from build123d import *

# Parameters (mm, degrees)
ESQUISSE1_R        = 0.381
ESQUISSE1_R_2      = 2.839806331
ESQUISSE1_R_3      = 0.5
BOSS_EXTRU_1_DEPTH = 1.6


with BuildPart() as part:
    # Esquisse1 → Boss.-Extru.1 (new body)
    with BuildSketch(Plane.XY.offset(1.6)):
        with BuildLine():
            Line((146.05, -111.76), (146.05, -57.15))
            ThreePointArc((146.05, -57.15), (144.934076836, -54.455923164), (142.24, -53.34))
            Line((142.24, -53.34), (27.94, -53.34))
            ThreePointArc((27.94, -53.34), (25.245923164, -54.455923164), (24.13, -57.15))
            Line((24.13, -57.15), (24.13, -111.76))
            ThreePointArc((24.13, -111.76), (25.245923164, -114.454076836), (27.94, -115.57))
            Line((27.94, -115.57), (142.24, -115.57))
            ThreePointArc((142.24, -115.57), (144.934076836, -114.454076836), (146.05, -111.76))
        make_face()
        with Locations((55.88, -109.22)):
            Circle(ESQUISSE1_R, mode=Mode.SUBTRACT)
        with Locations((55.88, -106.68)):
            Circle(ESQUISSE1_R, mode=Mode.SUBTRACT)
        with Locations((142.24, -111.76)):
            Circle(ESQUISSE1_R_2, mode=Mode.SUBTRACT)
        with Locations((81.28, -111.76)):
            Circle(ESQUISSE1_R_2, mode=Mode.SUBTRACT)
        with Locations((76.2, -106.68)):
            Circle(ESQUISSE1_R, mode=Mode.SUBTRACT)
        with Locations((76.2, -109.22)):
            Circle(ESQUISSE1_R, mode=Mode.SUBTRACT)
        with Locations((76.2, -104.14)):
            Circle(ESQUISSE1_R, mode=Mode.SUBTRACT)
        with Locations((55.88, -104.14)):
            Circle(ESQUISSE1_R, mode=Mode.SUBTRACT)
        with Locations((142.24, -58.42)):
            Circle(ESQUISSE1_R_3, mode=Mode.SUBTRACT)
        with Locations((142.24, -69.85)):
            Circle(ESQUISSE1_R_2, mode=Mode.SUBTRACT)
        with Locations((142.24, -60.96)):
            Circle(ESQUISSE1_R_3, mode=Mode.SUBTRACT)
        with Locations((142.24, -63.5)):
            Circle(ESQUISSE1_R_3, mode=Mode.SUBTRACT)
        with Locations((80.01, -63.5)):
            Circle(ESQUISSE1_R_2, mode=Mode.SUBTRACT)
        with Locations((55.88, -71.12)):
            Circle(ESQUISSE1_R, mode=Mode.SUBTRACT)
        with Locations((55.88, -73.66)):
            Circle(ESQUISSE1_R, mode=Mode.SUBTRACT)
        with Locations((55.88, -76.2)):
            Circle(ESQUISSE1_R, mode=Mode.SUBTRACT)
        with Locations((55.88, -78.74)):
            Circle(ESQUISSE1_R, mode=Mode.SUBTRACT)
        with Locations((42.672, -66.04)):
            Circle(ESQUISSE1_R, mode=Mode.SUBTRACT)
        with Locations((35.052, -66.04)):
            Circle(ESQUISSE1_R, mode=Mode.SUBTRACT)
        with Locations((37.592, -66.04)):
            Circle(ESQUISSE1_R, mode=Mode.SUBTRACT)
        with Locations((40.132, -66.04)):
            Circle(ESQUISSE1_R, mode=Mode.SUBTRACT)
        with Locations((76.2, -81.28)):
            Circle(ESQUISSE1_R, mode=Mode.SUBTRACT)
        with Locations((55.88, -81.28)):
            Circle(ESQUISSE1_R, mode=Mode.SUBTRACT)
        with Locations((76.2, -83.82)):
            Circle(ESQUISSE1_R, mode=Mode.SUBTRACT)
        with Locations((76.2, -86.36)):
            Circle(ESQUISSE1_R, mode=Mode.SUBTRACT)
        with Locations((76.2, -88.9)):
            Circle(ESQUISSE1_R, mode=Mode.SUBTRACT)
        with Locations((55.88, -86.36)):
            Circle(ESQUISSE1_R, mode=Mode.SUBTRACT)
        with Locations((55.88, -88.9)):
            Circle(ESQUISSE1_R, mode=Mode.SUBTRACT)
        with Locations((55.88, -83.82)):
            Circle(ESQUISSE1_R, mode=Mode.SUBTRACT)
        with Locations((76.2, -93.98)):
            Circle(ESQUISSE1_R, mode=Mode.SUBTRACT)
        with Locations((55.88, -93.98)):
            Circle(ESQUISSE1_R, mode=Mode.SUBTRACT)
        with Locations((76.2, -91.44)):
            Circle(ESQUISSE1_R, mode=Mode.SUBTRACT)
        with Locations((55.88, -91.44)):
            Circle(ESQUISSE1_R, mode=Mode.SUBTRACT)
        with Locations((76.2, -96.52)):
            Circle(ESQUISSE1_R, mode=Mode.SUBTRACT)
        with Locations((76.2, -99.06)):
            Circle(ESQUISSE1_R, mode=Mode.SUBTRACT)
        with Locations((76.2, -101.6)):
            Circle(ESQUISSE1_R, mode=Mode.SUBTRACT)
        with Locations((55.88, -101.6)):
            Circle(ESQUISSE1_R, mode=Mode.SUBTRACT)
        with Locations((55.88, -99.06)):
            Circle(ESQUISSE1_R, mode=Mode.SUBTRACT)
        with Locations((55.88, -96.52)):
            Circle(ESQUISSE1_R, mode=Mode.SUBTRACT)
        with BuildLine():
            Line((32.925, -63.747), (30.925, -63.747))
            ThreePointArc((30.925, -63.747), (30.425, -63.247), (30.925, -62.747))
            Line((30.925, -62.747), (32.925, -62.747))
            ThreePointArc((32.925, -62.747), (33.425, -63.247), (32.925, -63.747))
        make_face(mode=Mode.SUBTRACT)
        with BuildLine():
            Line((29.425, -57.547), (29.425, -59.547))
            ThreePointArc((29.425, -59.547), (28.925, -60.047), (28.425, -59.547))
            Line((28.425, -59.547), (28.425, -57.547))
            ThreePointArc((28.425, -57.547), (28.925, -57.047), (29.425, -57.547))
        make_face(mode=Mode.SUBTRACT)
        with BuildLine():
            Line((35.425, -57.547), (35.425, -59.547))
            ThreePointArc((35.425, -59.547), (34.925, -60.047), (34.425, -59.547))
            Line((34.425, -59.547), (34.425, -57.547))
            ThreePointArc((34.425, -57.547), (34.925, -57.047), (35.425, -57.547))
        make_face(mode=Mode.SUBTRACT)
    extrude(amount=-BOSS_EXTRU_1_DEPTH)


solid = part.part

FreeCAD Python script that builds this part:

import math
import FreeCAD as App
import Part
import Sketcher

V = App.Vector
Q = App.Units.Quantity

doc = App.newDocument("Part")
body = doc.addObject("PartDesign::Body", "Body")

# Sketch on XY plane
sketch1 = body.newObject("Sketcher::SketchObject", "Sketch")
sketch1.AttachmentSupport = (doc.getObject("XY_Plane"), [""])
sketch1.MapMode = "FlatFace"
sketch1.AttachmentOffset = App.Placement(V(0, 0, 1.6), App.Rotation())
sketch1.addGeometry(Part.LineSegment(V(146.05, -111.76, 0), V(146.05, -57.15, 0)), False)
sketch1.addGeometry(Part.ArcOfCircle(Part.Circle(V(142.24, -57.15, 0), V(0, 0, 1), 3.81), math.radians(0), math.radians(90)), False)
sketch1.addGeometry(Part.LineSegment(V(142.24, -53.34, 0), V(27.94, -53.34, 0)), False)
sketch1.addGeometry(Part.ArcOfCircle(Part.Circle(V(27.94, -57.15, 0), V(0, 0, 1), 3.81), math.radians(90), math.radians(180)), False)
sketch1.addGeometry(Part.LineSegment(V(24.13, -57.15, 0), V(24.13, -111.76, 0)), False)
sketch1.addGeometry(Part.ArcOfCircle(Part.Circle(V(27.94, -111.76, 0), V(0, 0, 1), 3.81), math.radians(-180), math.radians(-90)), False)
sketch1.addGeometry(Part.LineSegment(V(27.94, -115.57, 0), V(142.24, -115.57, 0)), False)
sketch1.addGeometry(Part.ArcOfCircle(Part.Circle(V(142.24, -111.76, 0), V(0, 0, 1), 3.81), math.radians(-90), math.radians(0)), False)
sketch1.addGeometry(Part.Circle(V(55.88, -109.22, 0), V(0, 0, 1), 0.38), False)
sketch1.addGeometry(Part.Circle(V(55.88, -106.68, 0), V(0, 0, 1), 0.38), False)
sketch1.addGeometry(Part.Circle(V(55.88, -104.14, 0), V(0, 0, 1), 0.38), False)
sketch1.addGeometry(Part.Circle(V(55.88, -101.6, 0), V(0, 0, 1), 0.38), False)
sketch1.addGeometry(Part.Circle(V(81.28, -111.76, 0), V(0, 0, 1), 2.84), False)
sketch1.addGeometry(Part.Circle(V(76.2, -109.22, 0), V(0, 0, 1), 0.38), False)
sketch1.addGeometry(Part.Circle(V(76.2, -106.68, 0), V(0, 0, 1), 0.38), False)
sketch1.addGeometry(Part.Circle(V(76.2, -104.14, 0), V(0, 0, 1), 0.38), False)
sketch1.addGeometry(Part.Circle(V(76.2, -101.6, 0), V(0, 0, 1), 0.38), False)
sketch1.addGeometry(Part.Circle(V(55.88, -99.06, 0), V(0, 0, 1), 0.38), False)
sketch1.addGeometry(Part.Circle(V(55.88, -96.52, 0), V(0, 0, 1), 0.38), False)
sketch1.addGeometry(Part.Circle(V(55.88, -93.98, 0), V(0, 0, 1), 0.38), False)
sketch1.addGeometry(Part.Circle(V(55.88, -91.44, 0), V(0, 0, 1), 0.38), False)
sketch1.addGeometry(Part.Circle(V(55.88, -88.9, 0), V(0, 0, 1), 0.38), False)
sketch1.addGeometry(Part.Circle(V(55.88, -86.36, 0), V(0, 0, 1), 0.38), False)
sketch1.addGeometry(Part.Circle(V(76.2, -99.06, 0), V(0, 0, 1), 0.38), False)
sketch1.addGeometry(Part.Circle(V(76.2, -96.52, 0), V(0, 0, 1), 0.38), False)
sketch1.addGeometry(Part.Circle(V(76.2, -93.98, 0), V(0, 0, 1), 0.38), False)
sketch1.addGeometry(Part.Circle(V(76.2, -91.44, 0), V(0, 0, 1), 0.38), False)
sketch1.addGeometry(Part.Circle(V(76.2, -88.9, 0), V(0, 0, 1), 0.38), False)
sketch1.addGeometry(Part.Circle(V(76.2, -86.36, 0), V(0, 0, 1), 0.38), False)
sketch1.addGeometry(Part.Circle(V(142.24, -111.76, 0), V(0, 0, 1), 2.84), False)
sketch1.addGeometry(Part.Circle(V(55.88, -83.82, 0), V(0, 0, 1), 0.38), False)
sketch1.addGeometry(Part.Circle(V(55.88, -81.28, 0), V(0, 0, 1), 0.38), False)
sketch1.addGeometry(Part.Circle(V(55.88, -78.74, 0), V(0, 0, 1), 0.38), False)
sketch1.addGeometry(Part.Circle(V(55.88, -76.2, 0), V(0, 0, 1), 0.38), False)
sketch1.addGeometry(Part.Circle(V(55.88, -73.66, 0), V(0, 0, 1), 0.38), False)
sketch1.addGeometry(Part.Circle(V(76.2, -83.82, 0), V(0, 0, 1), 0.38), False)
sketch1.addGeometry(Part.Circle(V(76.2, -81.28, 0), V(0, 0, 1), 0.38), False)
sketch1.addGeometry(Part.Circle(V(35.05, -66.04, 0), V(0, 0, 1), 0.38), False)
sketch1.addGeometry(Part.Circle(V(37.59, -66.04, 0), V(0, 0, 1), 0.38), False)
sketch1.addGeometry(Part.Circle(V(40.13, -66.04, 0), V(0, 0, 1), 0.38), False)
sketch1.addGeometry(Part.Circle(V(42.67, -66.04, 0), V(0, 0, 1), 0.38), False)
sketch1.addGeometry(Part.Circle(V(55.88, -71.12, 0), V(0, 0, 1), 0.38), False)
sketch1.addGeometry(Part.ArcOfCircle(Part.Circle(V(32.92, -63.25, 0), V(0, 0, 1), 0.5), math.radians(-90), math.radians(90)), False)
sketch1.addGeometry(Part.LineSegment(V(32.92, -63.75, 0), V(30.93, -63.75, 0)), False)
sketch1.addGeometry(Part.ArcOfCircle(Part.Circle(V(30.93, -63.25, 0), V(0, 0, 1), 0.5), math.radians(90), math.radians(270)), False)
sketch1.addGeometry(Part.LineSegment(V(30.93, -62.75, 0), V(32.92, -62.75, 0)), False)
sketch1.addGeometry(Part.ArcOfCircle(Part.Circle(V(28.93, -57.55, 0), V(0, 0, 1), 0.5), math.radians(0), math.radians(180)), False)
sketch1.addGeometry(Part.LineSegment(V(29.43, -57.55, 0), V(29.43, -59.55, 0)), False)
sketch1.addGeometry(Part.ArcOfCircle(Part.Circle(V(28.93, -59.55, 0), V(0, 0, 1), 0.5), math.radians(180), math.radians(360)), False)
sketch1.addGeometry(Part.LineSegment(V(28.43, -59.55, 0), V(28.43, -57.55, 0)), False)
sketch1.addGeometry(Part.ArcOfCircle(Part.Circle(V(34.92, -57.55, 0), V(0, 0, 1), 0.5), math.radians(0), math.radians(180)), False)
sketch1.addGeometry(Part.LineSegment(V(35.42, -57.55, 0), V(35.42, -59.55, 0)), False)
sketch1.addGeometry(Part.ArcOfCircle(Part.Circle(V(34.92, -59.55, 0), V(0, 0, 1), 0.5), math.radians(180), math.radians(360)), False)
sketch1.addGeometry(Part.LineSegment(V(34.42, -59.55, 0), V(34.42, -57.55, 0)), False)
sketch1.addGeometry(Part.Circle(V(80.01, -63.5, 0), V(0, 0, 1), 2.84), False)
sketch1.addGeometry(Part.Circle(V(142.24, -69.85, 0), V(0, 0, 1), 2.84), False)
sketch1.addGeometry(Part.Circle(V(142.24, -63.5, 0), V(0, 0, 1), 0.5), False)
sketch1.addGeometry(Part.Circle(V(142.24, -60.96, 0), V(0, 0, 1), 0.5), False)
sketch1.addGeometry(Part.Circle(V(142.24, -58.42, 0), V(0, 0, 1), 0.5), False)
sketch1.addConstraint(Sketcher.Constraint("Tangent", 0, 2, 1, 1))
sketch1.addConstraint(Sketcher.Constraint("Tangent", 1, 2, 2, 1))
sketch1.addConstraint(Sketcher.Constraint("Tangent", 2, 2, 3, 1))
sketch1.addConstraint(Sketcher.Constraint("Tangent", 3, 2, 4, 1))
sketch1.addConstraint(Sketcher.Constraint("Tangent", 4, 2, 5, 1))
sketch1.addConstraint(Sketcher.Constraint("Tangent", 5, 2, 6, 1))
sketch1.addConstraint(Sketcher.Constraint("Tangent", 6, 2, 7, 1))
sketch1.addConstraint(Sketcher.Constraint("Tangent", 7, 2, 0, 1))
sketch1.addConstraint(Sketcher.Constraint("Tangent", 42, 1, 43, 1))
sketch1.addConstraint(Sketcher.Constraint("Tangent", 43, 2, 44, 2))
sketch1.addConstraint(Sketcher.Constraint("Tangent", 44, 1, 45, 1))
sketch1.addConstraint(Sketcher.Constraint("Tangent", 45, 2, 42, 2))
sketch1.addConstraint(Sketcher.Constraint("Tangent", 46, 1, 47, 1))
sketch1.addConstraint(Sketcher.Constraint("Tangent", 47, 2, 48, 2))
sketch1.addConstraint(Sketcher.Constraint("Tangent", 48, 1, 49, 1))
sketch1.addConstraint(Sketcher.Constraint("Tangent", 49, 2, 46, 2))
sketch1.addConstraint(Sketcher.Constraint("Tangent", 50, 1, 51, 1))
sketch1.addConstraint(Sketcher.Constraint("Tangent", 51, 2, 52, 2))
sketch1.addConstraint(Sketcher.Constraint("Tangent", 52, 1, 53, 1))
sketch1.addConstraint(Sketcher.Constraint("Tangent", 53, 2, 50, 2))
sketch1.addConstraint(Sketcher.Constraint("Vertical", 0))
sketch1.addConstraint(Sketcher.Constraint("Horizontal", 2))
sketch1.addConstraint(Sketcher.Constraint("Vertical", 4))
sketch1.addConstraint(Sketcher.Constraint("Horizontal", 6))
sketch1.addConstraint(Sketcher.Constraint("Horizontal", 43))
sketch1.addConstraint(Sketcher.Constraint("Horizontal", 45))
sketch1.addConstraint(Sketcher.Constraint("Vertical", 47))
sketch1.addConstraint(Sketcher.Constraint("Vertical", 49))
sketch1.addConstraint(Sketcher.Constraint("Vertical", 51))
sketch1.addConstraint(Sketcher.Constraint("Vertical", 53))
sketch1.addConstraint(Sketcher.Constraint("Coincident", 29, 3, 7, 3))
sketch1.addConstraint(Sketcher.Constraint("Equal", 1, 3))
sketch1.addConstraint(Sketcher.Constraint("Equal", 3, 5))
sketch1.addConstraint(Sketcher.Constraint("Equal", 5, 7))
sketch1.addConstraint(Sketcher.Constraint("Equal", 8, 9))
sketch1.addConstraint(Sketcher.Constraint("Equal", 9, 10))
sketch1.addConstraint(Sketcher.Constraint("Equal", 10, 11))
sketch1.addConstraint(Sketcher.Constraint("Equal", 11, 13))
sketch1.addConstraint(Sketcher.Constraint("Equal", 13, 14))
sketch1.addConstraint(Sketcher.Constraint("Equal", 14, 15))
sketch1.addConstraint(Sketcher.Constraint("Equal", 15, 16))
sketch1.addConstraint(Sketcher.Constraint("Equal", 16, 17))
sketch1.addConstraint(Sketcher.Constraint("Equal", 17, 18))
sketch1.addConstraint(Sketcher.Constraint("Equal", 18, 19))
sketch1.addConstraint(Sketcher.Constraint("Equal", 19, 20))
sketch1.addConstraint(Sketcher.Constraint("Equal", 20, 21))
sketch1.addConstraint(Sketcher.Constraint("Equal", 21, 22))
sketch1.addConstraint(Sketcher.Constraint("Equal", 22, 23))
sketch1.addConstraint(Sketcher.Constraint("Equal", 23, 24))
sketch1.addConstraint(Sketcher.Constraint("Equal", 24, 25))
sketch1.addConstraint(Sketcher.Constraint("Equal", 25, 26))
sketch1.addConstraint(Sketcher.Constraint("Equal", 26, 27))
sketch1.addConstraint(Sketcher.Constraint("Equal", 27, 28))
sketch1.addConstraint(Sketcher.Constraint("Equal", 12, 29))
sketch1.addConstraint(Sketcher.Constraint("Equal", 28, 30))
sketch1.addConstraint(Sketcher.Constraint("Equal", 30, 31))
sketch1.addConstraint(Sketcher.Constraint("Equal", 31, 32))
sketch1.addConstraint(Sketcher.Constraint("Equal", 32, 33))
sketch1.addConstraint(Sketcher.Constraint("Equal", 33, 34))
sketch1.addConstraint(Sketcher.Constraint("Equal", 34, 35))
sketch1.addConstraint(Sketcher.Constraint("Equal", 35, 36))
sketch1.addConstraint(Sketcher.Constraint("Equal", 36, 37))
sketch1.addConstraint(Sketcher.Constraint("Equal", 37, 38))
sketch1.addConstraint(Sketcher.Constraint("Equal", 38, 39))
sketch1.addConstraint(Sketcher.Constraint("Equal", 39, 40))
sketch1.addConstraint(Sketcher.Constraint("Equal", 40, 41))
sketch1.addConstraint(Sketcher.Constraint("Equal", 44, 46))
sketch1.addConstraint(Sketcher.Constraint("Equal", 48, 50))
sketch1.addConstraint(Sketcher.Constraint("Equal", 29, 54))
sketch1.addConstraint(Sketcher.Constraint("Equal", 54, 55))
sketch1.addConstraint(Sketcher.Constraint("Equal", 52, 56))
sketch1.addConstraint(Sketcher.Constraint("Equal", 56, 57))
sketch1.addConstraint(Sketcher.Constraint("Equal", 57, 58))
sketch1.addConstraint(Sketcher.Constraint("Horizontal", 7, 3, 12, 3))
sketch1.addConstraint(Sketcher.Constraint("Horizontal", 8, 3, 13, 3))
sketch1.addConstraint(Sketcher.Constraint("Horizontal", 9, 3, 14, 3))
sketch1.addConstraint(Sketcher.Constraint("Horizontal", 10, 3, 15, 3))
sketch1.addConstraint(Sketcher.Constraint("Horizontal", 11, 3, 16, 3))
sketch1.addConstraint(Sketcher.Constraint("Horizontal", 17, 3, 23, 3))
sketch1.addConstraint(Sketcher.Constraint("Horizontal", 18, 3, 24, 3))
sketch1.addConstraint(Sketcher.Constraint("Horizontal", 19, 3, 25, 3))
sketch1.addConstraint(Sketcher.Constraint("Horizontal", 20, 3, 26, 3))
sketch1.addConstraint(Sketcher.Constraint("Horizontal", 21, 3, 27, 3))
sketch1.addConstraint(Sketcher.Constraint("Horizontal", 22, 3, 28, 3))
sketch1.addConstraint(Sketcher.Constraint("Horizontal", 30, 3, 35, 3))
sketch1.addConstraint(Sketcher.Constraint("Horizontal", 31, 3, 36, 3))
sketch1.addConstraint(Sketcher.Constraint("Horizontal", 37, 3, 38, 3))
sketch1.addConstraint(Sketcher.Constraint("Horizontal", 38, 3, 39, 3))
sketch1.addConstraint(Sketcher.Constraint("Horizontal", 39, 3, 40, 3))
sketch1.addConstraint(Sketcher.Constraint("Horizontal", 46, 3, 50, 3))
sketch1.addConstraint(Sketcher.Constraint("Horizontal", 48, 3, 52, 3))
sketch1.addConstraint(Sketcher.Constraint("Horizontal", 54, 3, 56, 3))
sketch1.addConstraint(Sketcher.Constraint("Vertical", 8, 3, 9, 3))
sketch1.addConstraint(Sketcher.Constraint("Vertical", 9, 3, 10, 3))
sketch1.addConstraint(Sketcher.Constraint("Vertical", 10, 3, 11, 3))
sketch1.addConstraint(Sketcher.Constraint("Vertical", 13, 3, 14, 3))
sketch1.addConstraint(Sketcher.Constraint("Vertical", 14, 3, 15, 3))
sketch1.addConstraint(Sketcher.Constraint("Vertical", 15, 3, 16, 3))
sketch1.addConstraint(Sketcher.Constraint("Vertical", 11, 3, 17, 3))
sketch1.addConstraint(Sketcher.Constraint("Vertical", 17, 3, 18, 3))
sketch1.addConstraint(Sketcher.Constraint("Vertical", 18, 3, 19, 3))
sketch1.addConstraint(Sketcher.Constraint("Vertical", 19, 3, 20, 3))
sketch1.addConstraint(Sketcher.Constraint("Vertical", 20, 3, 21, 3))
sketch1.addConstraint(Sketcher.Constraint("Vertical", 21, 3, 22, 3))
sketch1.addConstraint(Sketcher.Constraint("Vertical", 16, 3, 23, 3))
sketch1.addConstraint(Sketcher.Constraint("Vertical", 23, 3, 24, 3))
sketch1.addConstraint(Sketcher.Constraint("Vertical", 24, 3, 25, 3))
sketch1.addConstraint(Sketcher.Constraint("Vertical", 25, 3, 26, 3))
sketch1.addConstraint(Sketcher.Constraint("Vertical", 26, 3, 27, 3))
sketch1.addConstraint(Sketcher.Constraint("Vertical", 27, 3, 28, 3))
sketch1.addConstraint(Sketcher.Constraint("Vertical", 22, 3, 30, 3))
sketch1.addConstraint(Sketcher.Constraint("Vertical", 30, 3, 31, 3))
sketch1.addConstraint(Sketcher.Constraint("Vertical", 31, 3, 32, 3))
sketch1.addConstraint(Sketcher.Constraint("Vertical", 32, 3, 33, 3))
sketch1.addConstraint(Sketcher.Constraint("Vertical", 33, 3, 34, 3))
sketch1.addConstraint(Sketcher.Constraint("Vertical", 28, 3, 35, 3))
sketch1.addConstraint(Sketcher.Constraint("Vertical", 35, 3, 36, 3))
sketch1.addConstraint(Sketcher.Constraint("Vertical", 34, 3, 41, 3))
sketch1.addConstraint(Sketcher.Constraint("Vertical", 29, 3, 55, 3))
sketch1.addConstraint(Sketcher.Constraint("Vertical", 55, 3, 56, 3))
sketch1.addConstraint(Sketcher.Constraint("Vertical", 56, 3, 57, 3))
sketch1.addConstraint(Sketcher.Constraint("Vertical", 57, 3, 58, 3))
sketch1.addConstraint(Sketcher.Constraint("Equal", 45, 47))
sketch1.addConstraint(Sketcher.Constraint("Diameter", 8, Q("0.03 in")))
sketch1.addConstraint(Sketcher.Constraint("Radius", 1, Q("0.15 in")))
sketch1.addConstraint(Sketcher.Constraint("DistanceX", 2, 2, 2, 1, Q("4.5 in")))
sketch1.addConstraint(Sketcher.Constraint("DistanceY", 11, 3, -1, 1, Q("4 in")))
sketch1.addConstraint(Sketcher.Constraint("DistanceX", -1, 1, 13, 3, Q("3 in")))
sketch1.addConstraint(Sketcher.Constraint("DistanceY", 33, 3, -1, 1, Q("3 in")))
sketch1.addConstraint(Sketcher.Constraint("DistanceY", 0, 1, 0, 2, Q("2.15 in")))
sketch1.addConstraint(Sketcher.Constraint("DistanceX", -1, 1, 1, 3, Q("5.6 in")))
sketch1.addConstraint(Sketcher.Constraint("DistanceY", 5, 3, -1, 1, Q("4.4 in")))
sketch1.addConstraint(Sketcher.Constraint("DistanceX", -1, 1, 8, 3, Q("2.2 in")))
sketch1.addConstraint(Sketcher.Constraint("DistanceY", 8, 3, -1, 1, Q("4.3 in")))
sketch1.addConstraint(Sketcher.Constraint("DistanceY", 9, 3, -1, 1, Q("4.2 in")))
sketch1.addConstraint(Sketcher.Constraint("DistanceY", 10, 3, -1, 1, Q("4.1 in")))
sketch1.addConstraint(Sketcher.Constraint("DistanceX", -1, 1, 12, 3, Q("3.2 in")))
sketch1.addConstraint(Sketcher.Constraint("DistanceY", 17, 3, -1, 1, Q("3.9 in")))
sketch1.addConstraint(Sketcher.Constraint("DistanceY", 18, 3, -1, 1, Q("3.8 in")))
sketch1.addConstraint(Sketcher.Constraint("DistanceY", 19, 3, -1, 1, Q("3.7 in")))
sketch1.addConstraint(Sketcher.Constraint("DistanceY", 20, 3, -1, 1, Q("3.6 in")))
sketch1.addConstraint(Sketcher.Constraint("DistanceY", 21, 3, -1, 1, Q("3.5 in")))
sketch1.addConstraint(Sketcher.Constraint("DistanceY", 22, 3, -1, 1, Q("3.4 in")))
sketch1.addConstraint(Sketcher.Constraint("DistanceY", 30, 3, -1, 1, Q("3.3 in")))
sketch1.addConstraint(Sketcher.Constraint("DistanceY", 31, 3, -1, 1, Q("3.2 in")))
sketch1.addConstraint(Sketcher.Constraint("DistanceY", 32, 3, -1, 1, Q("3.1 in")))
sketch1.addConstraint(Sketcher.Constraint("DistanceY", 34, 3, -1, 1, Q("2.9 in")))
sketch1.addConstraint(Sketcher.Constraint("DistanceY", 37, 3, -1, 1, Q("2.6 in")))
sketch1.addConstraint(Sketcher.Constraint("DistanceY", 41, 3, -1, 1, Q("2.8 in")))
sketch1.addConstraint(Sketcher.Constraint("DistanceY", 54, 3, -1, 1, Q("2.5 in")))
sketch1.addConstraint(Sketcher.Constraint("DistanceY", 57, 3, -1, 1, Q("2.4 in")))
sketch1.addConstraint(Sketcher.Constraint("DistanceY", 58, 3, -1, 1, Q("2.3 in")))
sketch1.addConstraint(Sketcher.Constraint("Diameter", 56, 1.0))
sketch1.addConstraint(Sketcher.Constraint("DistanceX", -1, 1, 37, 3, Q("1.38 in")))
sketch1.addConstraint(Sketcher.Constraint("DistanceX", -1, 1, 38, 3, Q("1.48 in")))
sketch1.addConstraint(Sketcher.Constraint("DistanceX", -1, 1, 39, 3, Q("1.58 in")))
sketch1.addConstraint(Sketcher.Constraint("DistanceX", -1, 1, 40, 3, Q("1.68 in")))
sketch1.addConstraint(Sketcher.Constraint("DistanceX", -1, 1, 54, 3, Q("3.15 in")))
sketch1.addConstraint(Sketcher.Constraint("DistanceY", 55, 3, -1, 1, Q("2.75 in")))
sketch1.addConstraint(Sketcher.Constraint("DistanceX", -1, 1, 50, 3, Q("1.375 in")))
sketch1.addConstraint(Sketcher.Constraint("Diameter", 12, 5.679613))
sketch1.addConstraint(Sketcher.Constraint("DistanceX", 43, 2, 43, 1, 2.0))
sketch1.addConstraint(Sketcher.Constraint("DistanceX", -1, 1, 42, 3, 32.925))
sketch1.addConstraint(Sketcher.Constraint("DistanceY", 42, 3, -1, 1, 63.247))
sketch1.addConstraint(Sketcher.Constraint("DistanceX", -1, 1, 46, 3, 28.925))
sketch1.addConstraint(Sketcher.Constraint("DistanceY", 46, 3, -1, 1, 57.547))
pad1 = body.newObject("PartDesign::Pad", "Pad")
pad1.Profile = sketch1
pad1.Length = 1.6
pad1.Reversed = True

doc.recompute()
